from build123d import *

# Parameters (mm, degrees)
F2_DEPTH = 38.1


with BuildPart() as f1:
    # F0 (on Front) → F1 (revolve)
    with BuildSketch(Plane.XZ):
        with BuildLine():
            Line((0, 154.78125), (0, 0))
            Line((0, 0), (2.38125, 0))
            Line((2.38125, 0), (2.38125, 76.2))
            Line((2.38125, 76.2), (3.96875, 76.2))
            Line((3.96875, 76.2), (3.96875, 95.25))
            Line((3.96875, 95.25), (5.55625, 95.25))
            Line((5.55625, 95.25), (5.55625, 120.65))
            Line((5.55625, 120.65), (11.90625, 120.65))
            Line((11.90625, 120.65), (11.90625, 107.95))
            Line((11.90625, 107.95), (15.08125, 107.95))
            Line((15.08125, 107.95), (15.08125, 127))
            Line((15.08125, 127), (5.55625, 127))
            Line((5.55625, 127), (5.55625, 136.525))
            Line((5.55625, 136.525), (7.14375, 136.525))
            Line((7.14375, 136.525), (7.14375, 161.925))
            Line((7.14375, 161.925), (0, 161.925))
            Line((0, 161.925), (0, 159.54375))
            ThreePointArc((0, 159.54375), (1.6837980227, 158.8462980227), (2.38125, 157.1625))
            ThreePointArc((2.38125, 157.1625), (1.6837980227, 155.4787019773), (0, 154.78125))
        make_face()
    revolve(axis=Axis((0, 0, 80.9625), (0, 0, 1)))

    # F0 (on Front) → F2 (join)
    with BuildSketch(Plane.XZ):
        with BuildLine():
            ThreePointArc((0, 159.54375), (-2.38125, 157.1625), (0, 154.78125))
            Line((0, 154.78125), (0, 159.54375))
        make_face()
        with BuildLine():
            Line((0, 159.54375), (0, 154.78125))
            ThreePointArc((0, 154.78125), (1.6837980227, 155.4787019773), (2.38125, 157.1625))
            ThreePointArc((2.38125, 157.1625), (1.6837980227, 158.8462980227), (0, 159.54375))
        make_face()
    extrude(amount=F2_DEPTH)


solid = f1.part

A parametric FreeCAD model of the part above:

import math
import FreeCAD as App
import Part
import Sketcher

V = App.Vector
Q = App.Units.Quantity

doc = App.newDocument("Part")
body = doc.addObject("PartDesign::Body", "Body")

# Sketch on XZ plane
sketch1 = body.newObject("Sketcher::SketchObject", "Sketch")
sketch1.AttachmentSupport = (doc.getObject("XZ_Plane"), [""])
sketch1.MapMode = "FlatFace"
sketch1.addGeometry([
    Part.LineSegment(V(0, 154.8, 0), V(0, 0, 0)),  # 0
    Part.LineSegment(V(0, 0, 0), V(2.4, 0, 0)),  # 1
    Part.LineSegment(V(2.4, 0, 0), V(2.4, 76.2, 0)),  # 2
    Part.LineSegment(V(2.4, 76.2, 0), V(4, 76.2, 0)),  # 3
    Part.LineSegment(V(4, 76.2, 0), V(4, 95.2, 0)),  # 4
    Part.LineSegment(V(4, 95.2, 0), V(5.6, 95.2, 0)),  # 5
    Part.LineSegment(V(5.6, 95.2, 0), V(5.6, 120.7, 0)),  # 6
    Part.LineSegment(V(5.6, 120.7, 0), V(11.9, 120.7, 0)),  # 7
    Part.LineSegment(V(11.9, 120.7, 0), V(11.9, 108, 0)),  # 8
    Part.LineSegment(V(11.9, 108, 0), V(15.1, 108, 0)),  # 9
    Part.LineSegment(V(15.1, 108, 0), V(15.1, 127, 0)),  # 10
    Part.LineSegment(V(15.1, 127, 0), V(5.6, 127, 0)),  # 11
    Part.LineSegment(V(5.6, 127, 0), V(5.6, 136.5, 0)),  # 12
    Part.LineSegment(V(5.6, 136.5, 0), V(7.1, 136.5, 0)),  # 13
    Part.LineSegment(V(7.1, 136.5, 0), V(7.1, 161.9, 0)),  # 14
    Part.LineSegment(V(7.1, 161.9, 0), V(0, 161.9, 0)),  # 15
    Part.LineSegment(V(0, 161.9, 0), V(0, 159.5, 0)),  # 16
    Part.ArcOfCircle(Part.Circle(V(0, 157.2, 0), V(0, 0, 1), 2.4), math.radians(0), math.radians(90)),  # 17
    Part.ArcOfCircle(Part.Circle(V(0, 157.2, 0), V(0, 0, 1), 2.4), math.radians(-90), math.radians(0)),  # 18
], False)
sketch1.addConstraint([
    Sketcher.Constraint("Coincident", 0, 2, 1, 1),
    Sketcher.Constraint("Coincident", 1, 2, 2, 1),
    Sketcher.Constraint("Coincident", 2, 2, 3, 1),
    Sketcher.Constraint("Coincident", 3, 2, 4, 1),
    Sketcher.Constraint("Coincident", 4, 2, 5, 1),
    Sketcher.Constraint("Coincident", 5, 2, 6, 1),
    Sketcher.Constraint("Coincident", 6, 2, 7, 1),
    Sketcher.Constraint("Coincident", 7, 2, 8, 1),
    Sketcher.Constraint("Coincident", 8, 2, 9, 1),
    Sketcher.Constraint("Coincident", 9, 2, 10, 1),
    Sketcher.Constraint("Coincident", 10, 2, 11, 1),
    Sketcher.Constraint("Coincident", 11, 2, 12, 1),
    Sketcher.Constraint("Coincident", 12, 2, 13, 1),
    Sketcher.Constraint("Coincident", 13, 2, 14, 1),
    Sketcher.Constraint("Coincident", 14, 2, 15, 1),
    Sketcher.Constraint("Coincident", 15, 2, 16, 1),
    Sketcher.Constraint("Coincident", 16, 2, 17, 2),
    Sketcher.Constraint("Tangent", 17, 1, 18, 2),
    Sketcher.Constraint("Coincident", 18, 1, 0, 1),
    Sketcher.Constraint("Vertical", 0),
    Sketcher.Constraint("Horizontal", 1),
    Sketcher.Constraint("Vertical", 2),
    Sketcher.Constraint("Horizontal", 3),
    Sketcher.Constraint("Vertical", 4),
    Sketcher.Constraint("Horizontal", 5),
    Sketcher.Constraint("Vertical", 6),
    Sketcher.Constraint("Horizontal", 7),
    Sketcher.Constraint("Vertical", 8),
    Sketcher.Constraint("Horizontal", 9),
    Sketcher.Constraint("Vertical", 10),
    Sketcher.Constraint("Horizontal", 11),
    Sketcher.Constraint("Vertical", 12),
    Sketcher.Constraint("Horizontal", 13),
    Sketcher.Constraint("Vertical", 14),
    Sketcher.Constraint("Horizontal", 15),
    Sketcher.Constraint("Vertical", 16),
    Sketcher.Constraint("Coincident", 0, 2, -1, 1),
    Sketcher.Constraint("Equal", 17, 18),
    Sketcher.Constraint("PointOnObject", 17, 3, -2),
    Sketcher.Constraint("PointOnObject", 15, 2, -2),
    Sketcher.Constraint("Horizontal", 18, 3, 17, 1),
    Sketcher.Constraint("Vertical", 6, 2, 11, 2),
    Sketcher.Constraint("Vertical", 2, 2, 17, 1),
    Sketcher.Constraint("Equal", 3, 5),
    Sketcher.Constraint("Equal", 5, 13),
    Sketcher.Constraint("Equal", 4, 10),
    Sketcher.Constraint("Equal", 11, 12),
    Sketcher.Constraint("Equal", 6, 14),
    Sketcher.Constraint("Equal", 1, 16),
    Sketcher.Constraint("DistanceY", 2, 1, 2, 2, Q("3 in")),
    Sketcher.Constraint("DistanceY", 6, 1, 6, 2, Q("1 in")),
    Sketcher.Constraint("DistanceY", 8, 2, 8, 1, Q("0.5 in")),
    Sketcher.Constraint("DistanceY", -1, 1, 10, 2, Q("5 in")),
    Sketcher.Constraint("Radius", 17, Q("0.09375 in")),
    Sketcher.Constraint("DistanceX", 7, 1, 7, 2, Q("0.25 in")),
    Sketcher.Constraint("DistanceX", 3, 1, 3, 2, Q("0.0625 in")),
    Sketcher.Constraint("DistanceX", 9, 1, 9, 2, Q("0.125 in")),
])
revolution = body.newObject("PartDesign::Revolution", "Revolution")
revolution.Profile = sketch1
revolution.ReferenceAxis = (sketch1, ["V_Axis"])
revolution.Angle = 360

# Sketch on XZ plane
sketch2 = body.newObject("Sketcher::SketchObject", "Sketch001")
sketch2.AttachmentSupport = (doc.getObject("XZ_Plane"), [""])
sketch2.MapMode = "FlatFace"
sketch2.addGeometry(Part.Circle(V(0, 157.2, 0), V(0, 0, 1), 2.4), False)
sketch2.addConstraint([
    Sketcher.Constraint("PointOnObject", 0, 3, -2),
    Sketcher.Constraint("Diameter", 0, Q("0.1875 in")),
    Sketcher.Constraint("DistanceY", -1, 1, 0, 3, Q("6.1875 in")),
])
pad1 = body.newObject("PartDesign::Pad", "Pad")
pad1.Profile = sketch2
pad1.Length = Q("1.5 in")

doc.recompute()
